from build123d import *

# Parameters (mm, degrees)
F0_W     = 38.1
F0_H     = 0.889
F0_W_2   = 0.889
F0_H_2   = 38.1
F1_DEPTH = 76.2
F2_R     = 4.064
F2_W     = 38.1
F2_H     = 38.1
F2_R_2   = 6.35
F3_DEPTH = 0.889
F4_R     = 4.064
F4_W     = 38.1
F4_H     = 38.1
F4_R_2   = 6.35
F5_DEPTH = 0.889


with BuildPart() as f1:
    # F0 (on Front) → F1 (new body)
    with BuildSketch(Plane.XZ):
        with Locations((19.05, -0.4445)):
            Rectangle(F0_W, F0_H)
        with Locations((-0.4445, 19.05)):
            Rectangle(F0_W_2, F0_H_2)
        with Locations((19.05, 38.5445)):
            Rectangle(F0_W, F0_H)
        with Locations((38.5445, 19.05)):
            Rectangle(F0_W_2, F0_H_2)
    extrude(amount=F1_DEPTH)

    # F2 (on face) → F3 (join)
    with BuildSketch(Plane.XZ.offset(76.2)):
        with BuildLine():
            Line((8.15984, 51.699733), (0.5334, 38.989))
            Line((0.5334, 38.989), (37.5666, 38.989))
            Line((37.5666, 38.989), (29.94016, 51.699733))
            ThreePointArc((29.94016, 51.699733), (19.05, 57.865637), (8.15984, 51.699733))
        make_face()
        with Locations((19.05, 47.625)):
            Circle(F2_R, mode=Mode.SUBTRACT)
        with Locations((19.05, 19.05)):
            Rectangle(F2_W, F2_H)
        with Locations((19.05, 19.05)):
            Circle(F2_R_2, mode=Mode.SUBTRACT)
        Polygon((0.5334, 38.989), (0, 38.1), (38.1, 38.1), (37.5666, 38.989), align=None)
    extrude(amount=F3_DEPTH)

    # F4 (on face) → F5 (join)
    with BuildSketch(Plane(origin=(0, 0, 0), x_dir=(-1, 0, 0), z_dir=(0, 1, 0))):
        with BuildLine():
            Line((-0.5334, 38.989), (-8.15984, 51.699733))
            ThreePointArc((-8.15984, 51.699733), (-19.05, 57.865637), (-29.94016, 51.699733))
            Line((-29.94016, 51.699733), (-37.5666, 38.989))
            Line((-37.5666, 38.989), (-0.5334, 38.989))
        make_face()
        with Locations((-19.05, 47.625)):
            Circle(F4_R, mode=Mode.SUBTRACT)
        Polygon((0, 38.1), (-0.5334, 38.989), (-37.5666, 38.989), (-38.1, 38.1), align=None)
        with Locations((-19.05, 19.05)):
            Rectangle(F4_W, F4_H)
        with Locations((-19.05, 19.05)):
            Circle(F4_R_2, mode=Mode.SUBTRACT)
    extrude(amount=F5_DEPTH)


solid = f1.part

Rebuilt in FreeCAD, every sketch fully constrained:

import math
import FreeCAD as App
import Part
import Sketcher

V = App.Vector
Q = App.Units.Quantity

doc = App.newDocument("Part")
body = doc.addObject("PartDesign::Body", "Body")
body.AllowCompound = True

sketch1 = doc.addObject("Sketcher::SketchObject", "Sketch")
body.addObject(sketch1)
sketch1.AttachmentSupport = (doc.XZ_Plane, [""])
sketch1.MapMode = "FlatFace"
sketch1.addGeometry([
    Part.LineSegment(V(0, 0, 0), V(0, -0.9, 0)),
    Part.LineSegment(V(0, -0.9, 0), V(38.1, -0.9, 0)),
    Part.LineSegment(V(38.1, -0.9, 0), V(38.1, 0, 0)),
    Part.LineSegment(V(38.1, 0, 0), V(0, 0, 0)),
    Part.LineSegment(V(-0.9, 38.1, 0), V(-0.9, 0, 0)),
    Part.LineSegment(V(-0.9, 0, 0), V(0, 0, 0)),
    Part.LineSegment(V(0, 0, 0), V(0, 38.1, 0)),
    Part.LineSegment(V(0, 38.1, 0), V(-0.9, 38.1, 0)),
    Part.LineSegment(V(0, 39, 0), V(0, 38.1, 0)),
    Part.LineSegment(V(0, 38.1, 0), V(38.1, 38.1, 0)),
    Part.LineSegment(V(38.1, 38.1, 0), V(38.1, 39, 0)),
    Part.LineSegment(V(38.1, 39, 0), V(0, 39, 0)),
    Part.LineSegment(V(38.1, 38.1, 0), V(38.1, 0, 0)),
    Part.LineSegment(V(38.1, 0, 0), V(39, 0, 0)),
    Part.LineSegment(V(39, 0, 0), V(39, 38.1, 0)),
    Part.LineSegment(V(39, 38.1, 0), V(38.1, 38.1, 0)),
], False)
sketch1.addConstraint([
    Sketcher.Constraint("Coincident", 0, 2, 1, 1),
    Sketcher.Constraint("Coincident", 1, 2, 2, 1),
    Sketcher.Constraint("Coincident", 2, 2, 3, 1),
    Sketcher.Constraint("Coincident", 3, 2, 0, 1),
    Sketcher.Constraint("Coincident", 4, 2, 5, 1),
    Sketcher.Constraint("Coincident", 5, 2, 6, 1),
    Sketcher.Constraint("Coincident", 6, 2, 7, 1),
    Sketcher.Constraint("Coincident", 7, 2, 4, 1),
    Sketcher.Constraint("Coincident", 8, 2, 9, 1),
    Sketcher.Constraint("Coincident", 9, 2, 10, 1),
    Sketcher.Constraint("Coincident", 10, 2, 11, 1),
    Sketcher.Constraint("Coincident", 11, 2, 8, 1),
    Sketcher.Constraint("Coincident", 12, 2, 13, 1),
    Sketcher.Constraint("Coincident", 13, 2, 14, 1),
    Sketcher.Constraint("Coincident", 14, 2, 15, 1),
    Sketcher.Constraint("Coincident", 15, 2, 12, 1),
    Sketcher.Constraint("Vertical", 0),
    Sketcher.Constraint("Horizontal", 1),
    Sketcher.Constraint("Vertical", 2),
    Sketcher.Constraint("Horizontal", 3),
    Sketcher.Constraint("Vertical", 4),
    Sketcher.Constraint("Horizontal", 5),
    Sketcher.Constraint("Vertical", 6),
    Sketcher.Constraint("Horizontal", 7),
    Sketcher.Constraint("Vertical", 8),
    Sketcher.Constraint("Horizontal", 9),
    Sketcher.Constraint("Vertical", 10),
    Sketcher.Constraint("Horizontal", 11),
    Sketcher.Constraint("Vertical", 12),
    Sketcher.Constraint("Horizontal", 13),
    Sketcher.Constraint("Vertical", 14),
    Sketcher.Constraint("Horizontal", 15),
    Sketcher.Constraint("Coincident", 3, 2, -1, 1),
    Sketcher.Constraint("Coincident", 5, 2, -1, 1),
    Sketcher.Constraint("Coincident", 8, 2, 6, 2),
    Sketcher.Constraint("Coincident", 12, 2, 2, 2),
    Sketcher.Constraint("Coincident", 15, 2, 9, 2),
    Sketcher.Constraint("Equal", 7, 13),
    Sketcher.Constraint("Equal", 15, 0),
    Sketcher.Constraint("Equal", 11, 4),
    Sketcher.Constraint("Equal", 2, 8),
    Sketcher.Constraint("DistanceX", 1, 1, 1, 2, Q("1.5 in")),
    Sketcher.Constraint("DistanceX", 5, 1, 5, 2, Q("0.035 in")),
])
pad1 = doc.addObject("PartDesign::Pad", "Pad")
body.addObject(pad1)
pad1.Profile = sketch1
pad1.Length = Q("3 in")

sketch2 = doc.addObject("Sketcher::SketchObject", "Sketch001")
body.addObject(sketch2)
sketch2.AttachmentSupport = (doc.XZ_Plane, [""])
sketch2.MapMode = "FlatFace"
sketch2.AttachmentOffset = App.Placement(V(0, 0, 3 * 25.4), App.Rotation())
sketch2.addGeometry([
    Part.LineSegment(V(8.2, 51.7, 0), V(0.5, 39, 0)),
    Part.LineSegment(V(0.5, 39, 0), V(0, 38.1, 0)),
    Part.LineSegment(V(0, 38.1, 0), V(0, 0, 0)),
    Part.LineSegment(V(0, 0, 0), V(38.1, 0, 0)),
    Part.LineSegment(V(38.1, 0, 0), V(38.1, 38.1, 0)),
    Part.LineSegment(V(38.1, 38.1, 0), V(37.6, 39, 0)),
    Part.LineSegment(V(37.6, 39, 0), V(29.9, 51.7, 0)),
    Part.ArcOfCircle(Part.Circle(V(19.1, 45.2, 0), V(0, 0, 1), 12.7), math.radians(31), math.radians(149)),
    Part.Circle(V(19.1, 47.6, 0), V(0, 0, 1), 4.1),
    Part.Circle(V(19.1, 19.1, 0), V(0, 0, 1), 6.3),
], False)
sketch2.addConstraint([
    Sketcher.Constraint("Coincident", 0, 2, 1, 1),
    Sketcher.Constraint("Coincident", 1, 2, 2, 1),
    Sketcher.Constraint("Coincident", 2, 2, 3, 1),
    Sketcher.Constraint("Coincident", 3, 2, 4, 1),
    Sketcher.Constraint("Coincident", 4, 2, 5, 1),
    Sketcher.Constraint("Coincident", 5, 2, 6, 1),
    Sketcher.Constraint("Tangent", 6, 2, 7, 1),
    Sketcher.Constraint("Tangent", 7, 2, 0, 1),
    Sketcher.Constraint("Vertical", 2),
    Sketcher.Constraint("Horizontal", 3),
    Sketcher.Constraint("Vertical", 4),
    Sketcher.Constraint("Coincident", 2, 2, -1, 1),
    Sketcher.Constraint("Parallel", 0, 1),
    Sketcher.Constraint("Parallel", 5, 6),
    Sketcher.Constraint("Horizontal", 1, 2, 4, 2),
    Sketcher.Constraint("Horizontal", 0, 2, 5, 2),
    Sketcher.Constraint("Horizontal", 6, 2, 7, 2),
    Sketcher.Constraint("Vertical", 7, 3, 8, 3),
    Sketcher.Constraint("Vertical", 8, 3, 9, 3),
    Sketcher.Constraint("Equal", 3, 2),
    Sketcher.Constraint("Diameter", 9, Q("0.5 in")),
    Sketcher.Constraint("Radius", 7, Q("0.5 in")),
    Sketcher.Constraint("Diameter", 8, Q("0.32 in")),
    Sketcher.Constraint("DistanceX", 3, 1, 3, 2, Q("1.5 in")),
    Sketcher.Constraint("DistanceY", -1, 1, 9, 3, Q("0.75 in")),
    Sketcher.Constraint("DistanceY", 0, 2, 8, 3, Q("0.34 in")),
    Sketcher.Constraint("DistanceY", -1, 1, 8, 3, Q("1.875 in")),
    Sketcher.Constraint("DistanceX", -1, 1, 0, 2, Q("0.021 in")),
])
pad2 = doc.addObject("PartDesign::Pad", "Pad001")
body.addObject(pad2)
pad2.Profile = sketch2
pad2.Length = Q("0.035 in")

sketch3 = doc.addObject("Sketcher::SketchObject", "Sketch002")
body.addObject(sketch3)
sketch3.AttachmentSupport = (doc.XZ_Plane, [""])
sketch3.MapMode = "FlatFace"
sketch3.addGeometry([
    Part.LineSegment(V(0.5, 39, 0), V(8.2, 51.7, 0)),
    Part.ArcOfCircle(Part.Circle(V(19.1, 45.2, 0), V(0, 0, 1), 12.7), math.radians(31), math.radians(149)),
    Part.LineSegment(V(29.9, 51.7, 0), V(37.6, 39, 0)),
    Part.LineSegment(V(37.6, 39, 0), V(38.1, 38.1, 0)),
    Part.LineSegment(V(38.1, 38.1, 0), V(38.1, 0, 0)),
    Part.LineSegment(V(38.1, 0, 0), V(0, 0, 0)),
    Part.LineSegment(V(0, 0, 0), V(0, 38.1, 0)),
    Part.LineSegment(V(0, 38.1, 0), V(0.5, 39, 0)),
    Part.Circle(V(19.1, 19.1, 0), V(0, 0, 1), 6.3),
    Part.Circle(V(19.1, 47.6, 0), V(0, 0, 1), 4.1),
], False)
sketch3.addConstraint([
    Sketcher.Constraint("Tangent", 0, 2, 1, 2),
    Sketcher.Constraint("Tangent", 1, 1, 2, 1),
    Sketcher.Constraint("Coincident", 2, 2, 3, 1),
    Sketcher.Constraint("Coincident", 3, 2, 4, 1),
    Sketcher.Constraint("Coincident", 4, 2, 5, 1),
    Sketcher.Constraint("Coincident", 5, 2, 6, 1),
    Sketcher.Constraint("Coincident", 6, 2, 7, 1),
    Sketcher.Constraint("Coincident", 7, 2, 0, 1),
    Sketcher.Constraint("Vertical", 4),
    Sketcher.Constraint("Horizontal", 5),
    Sketcher.Constraint("Vertical", 6),
    Sketcher.Constraint("Coincident", 5, 2, -1, 1),
    Sketcher.Constraint("Parallel", 2, 3),
    Sketcher.Constraint("Parallel", 0, 7),
    Sketcher.Constraint("Horizontal", 0, 2, 1, 1),
    Sketcher.Constraint("Horizontal", 3, 2, 6, 2),
    Sketcher.Constraint("Horizontal", 2, 2, 7, 2),
    Sketcher.Constraint("Vertical", 1, 3, 8, 3),
    Sketcher.Constraint("Vertical", 8, 3, 9, 3),
    Sketcher.Constraint("Equal", 5, 4),
    Sketcher.Constraint("Diameter", 8, Q("0.5 in")),
    Sketcher.Constraint("Radius", 1, Q("0.5 in")),
    Sketcher.Constraint("Diameter", 9, Q("0.32 in")),
    Sketcher.Constraint("DistanceX", 5, 2, 5, 1, Q("1.5 in")),
    Sketcher.Constraint("DistanceY", -1, 1, 8, 3, Q("0.75 in")),
    Sketcher.Constraint("DistanceY", 2, 2, 9, 3, Q("0.34 in")),
    Sketcher.Constraint("DistanceY", -1, 1, 9, 3, Q("1.875 in")),
    Sketcher.Constraint("DistanceX", -1, 1, 2, 2, Q("1.479 in")),
])
pad3 = doc.addObject("PartDesign::Pad", "Pad002")
body.addObject(pad3)
pad3.Profile = sketch3
pad3.Length = Q("0.035 in")
pad3.Reversed = True

doc.recompute()
